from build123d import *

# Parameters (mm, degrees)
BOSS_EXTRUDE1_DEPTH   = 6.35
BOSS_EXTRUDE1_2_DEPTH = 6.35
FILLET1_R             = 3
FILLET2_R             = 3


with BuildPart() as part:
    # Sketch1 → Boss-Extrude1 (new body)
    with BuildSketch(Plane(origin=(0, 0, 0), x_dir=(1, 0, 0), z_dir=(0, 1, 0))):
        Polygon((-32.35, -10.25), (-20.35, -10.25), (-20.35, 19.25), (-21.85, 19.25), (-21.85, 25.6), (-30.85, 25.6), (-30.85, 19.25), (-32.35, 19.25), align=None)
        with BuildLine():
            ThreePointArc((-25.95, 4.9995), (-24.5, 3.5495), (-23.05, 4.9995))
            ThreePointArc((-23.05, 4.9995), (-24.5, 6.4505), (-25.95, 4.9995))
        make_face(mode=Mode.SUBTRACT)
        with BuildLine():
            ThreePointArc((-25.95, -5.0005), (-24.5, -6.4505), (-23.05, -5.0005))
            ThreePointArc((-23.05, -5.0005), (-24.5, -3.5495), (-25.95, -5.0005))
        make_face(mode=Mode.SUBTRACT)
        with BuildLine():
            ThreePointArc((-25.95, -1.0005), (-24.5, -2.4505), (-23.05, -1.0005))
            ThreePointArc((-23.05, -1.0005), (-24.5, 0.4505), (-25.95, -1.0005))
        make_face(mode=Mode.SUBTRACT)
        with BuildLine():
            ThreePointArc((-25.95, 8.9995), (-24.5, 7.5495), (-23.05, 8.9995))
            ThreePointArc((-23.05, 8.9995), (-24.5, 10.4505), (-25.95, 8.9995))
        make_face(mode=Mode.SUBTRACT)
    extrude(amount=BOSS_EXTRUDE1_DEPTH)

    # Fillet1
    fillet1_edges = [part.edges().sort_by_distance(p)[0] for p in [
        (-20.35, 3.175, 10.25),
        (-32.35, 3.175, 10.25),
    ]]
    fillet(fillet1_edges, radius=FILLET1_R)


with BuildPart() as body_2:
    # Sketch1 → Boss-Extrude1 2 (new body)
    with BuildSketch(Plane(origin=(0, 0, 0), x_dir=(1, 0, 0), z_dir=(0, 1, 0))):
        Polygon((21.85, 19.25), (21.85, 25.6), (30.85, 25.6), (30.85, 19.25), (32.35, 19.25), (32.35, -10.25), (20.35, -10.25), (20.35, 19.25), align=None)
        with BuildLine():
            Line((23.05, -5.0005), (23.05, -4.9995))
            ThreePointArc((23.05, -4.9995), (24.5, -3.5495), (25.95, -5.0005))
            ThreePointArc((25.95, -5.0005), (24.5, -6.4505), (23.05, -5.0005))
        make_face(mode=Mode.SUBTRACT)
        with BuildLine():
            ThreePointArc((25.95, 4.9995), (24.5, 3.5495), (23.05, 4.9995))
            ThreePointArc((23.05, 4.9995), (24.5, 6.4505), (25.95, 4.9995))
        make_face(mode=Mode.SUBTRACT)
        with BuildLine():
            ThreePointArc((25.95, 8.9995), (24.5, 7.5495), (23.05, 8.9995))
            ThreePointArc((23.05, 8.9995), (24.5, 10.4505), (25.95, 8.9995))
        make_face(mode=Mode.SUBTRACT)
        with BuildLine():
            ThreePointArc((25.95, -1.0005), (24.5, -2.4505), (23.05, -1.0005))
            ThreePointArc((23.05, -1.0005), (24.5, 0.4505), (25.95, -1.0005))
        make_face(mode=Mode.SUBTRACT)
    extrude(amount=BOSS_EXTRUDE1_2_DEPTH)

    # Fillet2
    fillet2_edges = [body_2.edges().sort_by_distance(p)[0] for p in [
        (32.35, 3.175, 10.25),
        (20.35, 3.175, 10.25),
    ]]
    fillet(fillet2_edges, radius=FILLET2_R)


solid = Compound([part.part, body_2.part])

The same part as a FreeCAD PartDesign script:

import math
import FreeCAD as App
import Part
import Sketcher

V = App.Vector


def edges_at(feature, points):
    """Names of the edges that pass closest to the given points."""
    edges = feature.Shape.Edges
    near = lambda p: min(range(len(edges)), key=lambda i: edges[i].distToShape(Part.Vertex(*p))[0])
    return sorted({f"Edge{near(p) + 1}" for p in points})

doc = App.newDocument("Part")
body = doc.addObject("PartDesign::Body", "Body")

sketch1 = body.newObject("Sketcher::SketchObject", "Sketch")
sketch1.AttachmentSupport = (doc.getObject("XZ_Plane"), [""])
sketch1.MapMode = "FlatFace"
sketch1.addGeometry([
    Part.LineSegment(V(-32.4, 10.2, 0), V(-20.4, 10.2, 0)),
    Part.LineSegment(V(-20.4, 10.2, 0), V(-20.4, -19.2, 0)),
    Part.LineSegment(V(-20.4, -19.2, 0), V(-21.9, -19.2, 0)),
    Part.LineSegment(V(-21.9, -19.2, 0), V(-21.9, -25.6, 0)),
    Part.LineSegment(V(-21.9, -25.6, 0), V(-30.9, -25.6, 0)),
    Part.LineSegment(V(-30.9, -25.6, 0), V(-30.9, -19.2, 0)),
    Part.LineSegment(V(-30.9, -19.2, 0), V(-32.4, -19.2, 0)),
    Part.LineSegment(V(-32.4, -19.2, 0), V(-32.4, 10.2, 0)),
    Part.ArcOfCircle(Part.Circle(V(-24.5, 5, 0), V(0, 0, 1), 1.4), math.radians(0), math.radians(180)),
    Part.ArcOfCircle(Part.Circle(V(-24.5, 5, 0), V(0, 0, 1), 1.5), math.radians(180), math.radians(360)),
    Part.ArcOfCircle(Part.Circle(V(-24.5, 1, 0), V(0, 0, 1), 1.4), math.radians(0), math.radians(180)),
    Part.ArcOfCircle(Part.Circle(V(-24.5, 1, 0), V(0, 0, 1), 1.5), math.radians(180), math.radians(360)),
    Part.ArcOfCircle(Part.Circle(V(-24.5, -5, 0), V(0, 0, 1), 1.4), math.radians(0), math.radians(180)),
    Part.ArcOfCircle(Part.Circle(V(-24.5, -5, 0), V(0, 0, 1), 1.5), math.radians(180), math.radians(360)),
    Part.ArcOfCircle(Part.Circle(V(-24.5, -9, 0), V(0, 0, 1), 1.4), math.radians(0), math.radians(180)),
    Part.ArcOfCircle(Part.Circle(V(-24.5, -9, 0), V(0, 0, 1), 1.5), math.radians(180), math.radians(360)),
], False)
sketch1.addConstraint([
    Sketcher.Constraint("Coincident", 0, 2, 1, 1),
    Sketcher.Constraint("Coincident", 1, 2, 2, 1),
    Sketcher.Constraint("Coincident", 2, 2, 3, 1),
    Sketcher.Constraint("Coincident", 3, 2, 4, 1),
    Sketcher.Constraint("Coincident", 4, 2, 5, 1),
    Sketcher.Constraint("Coincident", 5, 2, 6, 1),
    Sketcher.Constraint("Coincident", 6, 2, 7, 1),
    Sketcher.Constraint("Coincident", 7, 2, 0, 1),
    Sketcher.Constraint("Coincident", 8, 1, 9, 2),
    Sketcher.Constraint("Coincident", 9, 1, 8, 2),
    Sketcher.Constraint("Coincident", 10, 1, 11, 2),
    Sketcher.Constraint("Coincident", 11, 1, 10, 2),
    Sketcher.Constraint("Coincident", 12, 1, 13, 2),
    Sketcher.Constraint("Coincident", 13, 1, 12, 2),
    Sketcher.Constraint("Coincident", 14, 1, 15, 2),
    Sketcher.Constraint("Coincident", 15, 1, 14, 2),
    Sketcher.Constraint("Horizontal", 0),
    Sketcher.Constraint("Vertical", 1),
    Sketcher.Constraint("Horizontal", 2),
    Sketcher.Constraint("Vertical", 3),
    Sketcher.Constraint("Horizontal", 4),
    Sketcher.Constraint("Vertical", 5),
    Sketcher.Constraint("Horizontal", 6),
    Sketcher.Constraint("Vertical", 7),
    Sketcher.Constraint("Equal", 9, 10),
    Sketcher.Constraint("Equal", 11, 12),
    Sketcher.Constraint("Equal", 13, 14),
    Sketcher.Constraint("Symmetric", 9, 3, 12, 3, -1),
    Sketcher.Constraint("Horizontal", 2, 2, 5, 2),
    Sketcher.Constraint("Horizontal", 8, 1, 9, 1),
    Sketcher.Constraint("Horizontal", 10, 1, 11, 1),
    Sketcher.Constraint("Horizontal", 12, 1, 13, 1),
    Sketcher.Constraint("Horizontal", 14, 1, 15, 1),
    Sketcher.Constraint("Vertical", 9, 3, 10, 3),
    Sketcher.Constraint("Vertical", 13, 3, 14, 3),
    Sketcher.Constraint("Equal", 2, 6),
    Sketcher.Constraint("DistanceX", 0, 1, 0, 2, 12.0),
    Sketcher.Constraint("DistanceX", 4, 2, 4, 1, 9.0),
    Sketcher.Constraint("Radius", 8, 1.45),
    Sketcher.Constraint("DistanceY", 1, 2, 1, 1, 29.5),
    Sketcher.Constraint("DistanceY", 10, 3, 8, 3, 4.0),
    Sketcher.Constraint("DistanceY", 11, 3, 9, 3, 4.0),
    Sketcher.Constraint("DistanceY", 12, 3, 10, 3, 6.0),
    Sketcher.Constraint("DistanceY", 13, 3, 11, 3, 6.0),
    Sketcher.Constraint("DistanceY", 14, 3, 12, 3, 4.0),
    Sketcher.Constraint("DistanceY", 15, 3, 13, 3, 4.0),
    Sketcher.Constraint("DistanceY", 10, 3, 8, 1, 4.0),
    Sketcher.Constraint("DistanceY", 10, 1, 8, 1, 4.0),
    Sketcher.Constraint("DistanceY", 14, 3, 12, 1, 4.0),
    Sketcher.Constraint("DistanceY", 14, 1, 12, 1, 4.0),
    Sketcher.Constraint("DistanceY", 3, 2, 3, 1, 6.35),
    Sketcher.Constraint("DistanceX", 8, 3, -1, 1, 24.5),
    Sketcher.Constraint("DistanceY", 3, 2, -1, 1, 25.6),
    Sketcher.Constraint("DistanceX", 8, 1, 0, 2, 2.7),
    Sketcher.Constraint("DistanceY", 9, 3, 8, 3, 0.001),
])
pad1 = body.newObject("PartDesign::Pad", "Pad")
pad1.Profile = sketch1
pad1.Length = 6.35
pad1.Reversed = True
doc.recompute()

fillet = body.newObject("PartDesign::Fillet", "Fillet")
fillet.Base = (pad1, edges_at(pad1, [(-20.35, 3.175, 10.25), (-32.35, 3.175, 10.25)]))
fillet.Radius = 3
body2 = doc.addObject("PartDesign::Body", "Body001")

sketch2 = body2.newObject("Sketcher::SketchObject", "Sketch001")
sketch2.AttachmentSupport = (doc.getObject("XZ_Plane001"), [""])
sketch2.MapMode = "FlatFace"
sketch2.addGeometry([
    Part.LineSegment(V(21.85, -25.6, 0), V(21.85, -19.25, 0)),
    Part.LineSegment(V(21.85, -19.25, 0), V(20.35, -19.25, 0)),
    Part.LineSegment(V(20.35, -19.25, 0), V(20.35, 10.25, 0)),
    Part.LineSegment(V(20.35, 10.25, 0), V(32.35, 10.25, 0)),
    Part.LineSegment(V(32.35, 10.25, 0), V(32.35, -19.25, 0)),
    Part.LineSegment(V(32.35, -19.25, 0), V(30.85, -19.25, 0)),
    Part.LineSegment(V(30.85, -19.25, 0), V(30.85, -25.6, 0)),
    Part.LineSegment(V(30.85, -25.6, 0), V(21.85, -25.6, 0)),
    Part.LineSegment(V(23.05, 5.0005, 0), V(23.05, 4.9995, 0)),
    Part.ArcOfCircle(Part.Circle(V(24.5, 4.9995, 0), V(0, 0, 1), 1.45), math.radians(-180), math.radians(0)),
    Part.ArcOfCircle(Part.Circle(V(24.5, 5.0005, 0), V(0, 0, 1), 1.45), math.radians(0), math.radians(180)),
    Part.ArcOfCircle(Part.Circle(V(24.5, 1.0005, 0), V(0, 0, 1), 1.45), math.radians(0), math.radians(180)),
    Part.ArcOfCircle(Part.Circle(V(24.5, 0.9995, 0), V(0, 0, 1), 1.45), math.radians(180), math.radians(360)),
    Part.ArcOfCircle(Part.Circle(V(24.5, -4.9995, 0), V(0, 0, 1), 1.45), math.radians(0), math.radians(180)),
    Part.ArcOfCircle(Part.Circle(V(24.5, -5.0005, 0), V(0, 0, 1), 1.45), math.radians(180), math.radians(360)),
    Part.ArcOfCircle(Part.Circle(V(24.5, -8.9995, 0), V(0, 0, 1), 1.45), math.radians(0), math.radians(180)),
    Part.ArcOfCircle(Part.Circle(V(24.5, -9.0005, 0), V(0, 0, 1), 1.45), math.radians(180), math.radians(360)),
], False)
sketch2.addConstraint([
    Sketcher.Constraint("Coincident", 0, 2, 1, 1),
    Sketcher.Constraint("Coincident", 1, 2, 2, 1),
    Sketcher.Constraint("Coincident", 2, 2, 3, 1),
    Sketcher.Constraint("Coincident", 3, 2, 4, 1),
    Sketcher.Constraint("Coincident", 4, 2, 5, 1),
    Sketcher.Constraint("Coincident", 5, 2, 6, 1),
    Sketcher.Constraint("Coincident", 6, 2, 7, 1),
    Sketcher.Constraint("Coincident", 7, 2, 0, 1),
    Sketcher.Constraint("Tangent", 8, 2, 9, 1),
    Sketcher.Constraint("Coincident", 9, 2, 10, 1),
    Sketcher.Constraint("Coincident", 10, 2, 8, 1),
    Sketcher.Constraint("Coincident", 11, 1, 12, 2),
    Sketcher.Constraint("Coincident", 12, 1, 11, 2),
    Sketcher.Constraint("Coincident", 13, 1, 14, 2),
    Sketcher.Constraint("Coincident", 14, 1, 13, 2),
    Sketcher.Constraint("Coincident", 15, 1, 16, 2),
    Sketcher.Constraint("Coincident", 16, 1, 15, 2),
    Sketcher.Constraint("Vertical", 0),
    Sketcher.Constraint("Horizontal", 1),
    Sketcher.Constraint("Vertical", 2),
    Sketcher.Constraint("Horizontal", 3),
    Sketcher.Constraint("Vertical", 4),
    Sketcher.Constraint("Horizontal", 5),
    Sketcher.Constraint("Vertical", 6),
    Sketcher.Constraint("Horizontal", 7),
    Sketcher.Constraint("Equal", 10, 11),
    Sketcher.Constraint("Equal", 12, 13),
    Sketcher.Constraint("Equal", 14, 15),
    Sketcher.Constraint("Symmetric", 9, 3, 13, 3, -1),
    Sketcher.Constraint("Horizontal", 1, 2, 4, 2),
    Sketcher.Constraint("Horizontal", 9, 3, 8, 2),
    Sketcher.Constraint("Horizontal", 10, 3, 9, 2),
    Sketcher.Constraint("Horizontal", 9, 2, 10, 2),
    Sketcher.Constraint("Horizontal", 11, 1, 12, 1),
    Sketcher.Constraint("Horizontal", 13, 1, 14, 1),
    Sketcher.Constraint("Horizontal", 15, 1, 16, 1),
    Sketcher.Constraint("Vertical", 10, 3, 11, 3),
    Sketcher.Constraint("Vertical", 14, 3, 15, 3),
    Sketcher.Constraint("Equal", 1, 5),
    Sketcher.Constraint("DistanceX", 3, 1, 3, 2, 12.0),
    Sketcher.Constraint("DistanceX", 7, 2, 7, 1, 9.0),
    Sketcher.Constraint("Radius", 9, 1.45),
    Sketcher.Constraint("DistanceY", 2, 1, 2, 2, 29.5),
    Sketcher.Constraint("DistanceY", 11, 3, 10, 3, 4.0),
    Sketcher.Constraint("DistanceY", 12, 3, 9, 3, 4.0),
    Sketcher.Constraint("DistanceY", 13, 3, 11, 3, 6.0),
    Sketcher.Constraint("DistanceY", 14, 3, 12, 3, 6.0),
    Sketcher.Constraint("DistanceY", 15, 3, 13, 3, 4.0),
    Sketcher.Constraint("DistanceY", 16, 3, 14, 3, 4.0),
    Sketcher.Constraint("DistanceY", 11, 1, 9, 2, 4.0),
    Sketcher.Constraint("DistanceY", 15, 3, 13, 1, 4.0),
    Sketcher.Constraint("DistanceY", 15, 1, 13, 1, 4.0),
    Sketcher.Constraint("DistanceY", 0, 1, 0, 2, 6.35),
    Sketcher.Constraint("DistanceX", -1, 1, 9, 3, 24.5),
    Sketcher.Constraint("DistanceY", 6, 2, -1, 1, 25.6),
    Sketcher.Constraint("DistanceX", 2, 2, 8, 2, 2.7),
    Sketcher.Constraint("DistanceY", 8, 2, 8, 1, 0.001),
])
pad2 = body2.newObject("PartDesign::Pad", "Pad001")
pad2.Profile = sketch2
pad2.Length = 6.35
pad2.Reversed = True
doc.recompute()

fillet2 = body2.newObject("PartDesign::Fillet", "Fillet001")
fillet2.Base = (pad2, edges_at(pad2, [(32.35, 3.175, 10.25), (20.35, 3.175, 10.25)]))
fillet2.Radius = 3

doc.recompute()
